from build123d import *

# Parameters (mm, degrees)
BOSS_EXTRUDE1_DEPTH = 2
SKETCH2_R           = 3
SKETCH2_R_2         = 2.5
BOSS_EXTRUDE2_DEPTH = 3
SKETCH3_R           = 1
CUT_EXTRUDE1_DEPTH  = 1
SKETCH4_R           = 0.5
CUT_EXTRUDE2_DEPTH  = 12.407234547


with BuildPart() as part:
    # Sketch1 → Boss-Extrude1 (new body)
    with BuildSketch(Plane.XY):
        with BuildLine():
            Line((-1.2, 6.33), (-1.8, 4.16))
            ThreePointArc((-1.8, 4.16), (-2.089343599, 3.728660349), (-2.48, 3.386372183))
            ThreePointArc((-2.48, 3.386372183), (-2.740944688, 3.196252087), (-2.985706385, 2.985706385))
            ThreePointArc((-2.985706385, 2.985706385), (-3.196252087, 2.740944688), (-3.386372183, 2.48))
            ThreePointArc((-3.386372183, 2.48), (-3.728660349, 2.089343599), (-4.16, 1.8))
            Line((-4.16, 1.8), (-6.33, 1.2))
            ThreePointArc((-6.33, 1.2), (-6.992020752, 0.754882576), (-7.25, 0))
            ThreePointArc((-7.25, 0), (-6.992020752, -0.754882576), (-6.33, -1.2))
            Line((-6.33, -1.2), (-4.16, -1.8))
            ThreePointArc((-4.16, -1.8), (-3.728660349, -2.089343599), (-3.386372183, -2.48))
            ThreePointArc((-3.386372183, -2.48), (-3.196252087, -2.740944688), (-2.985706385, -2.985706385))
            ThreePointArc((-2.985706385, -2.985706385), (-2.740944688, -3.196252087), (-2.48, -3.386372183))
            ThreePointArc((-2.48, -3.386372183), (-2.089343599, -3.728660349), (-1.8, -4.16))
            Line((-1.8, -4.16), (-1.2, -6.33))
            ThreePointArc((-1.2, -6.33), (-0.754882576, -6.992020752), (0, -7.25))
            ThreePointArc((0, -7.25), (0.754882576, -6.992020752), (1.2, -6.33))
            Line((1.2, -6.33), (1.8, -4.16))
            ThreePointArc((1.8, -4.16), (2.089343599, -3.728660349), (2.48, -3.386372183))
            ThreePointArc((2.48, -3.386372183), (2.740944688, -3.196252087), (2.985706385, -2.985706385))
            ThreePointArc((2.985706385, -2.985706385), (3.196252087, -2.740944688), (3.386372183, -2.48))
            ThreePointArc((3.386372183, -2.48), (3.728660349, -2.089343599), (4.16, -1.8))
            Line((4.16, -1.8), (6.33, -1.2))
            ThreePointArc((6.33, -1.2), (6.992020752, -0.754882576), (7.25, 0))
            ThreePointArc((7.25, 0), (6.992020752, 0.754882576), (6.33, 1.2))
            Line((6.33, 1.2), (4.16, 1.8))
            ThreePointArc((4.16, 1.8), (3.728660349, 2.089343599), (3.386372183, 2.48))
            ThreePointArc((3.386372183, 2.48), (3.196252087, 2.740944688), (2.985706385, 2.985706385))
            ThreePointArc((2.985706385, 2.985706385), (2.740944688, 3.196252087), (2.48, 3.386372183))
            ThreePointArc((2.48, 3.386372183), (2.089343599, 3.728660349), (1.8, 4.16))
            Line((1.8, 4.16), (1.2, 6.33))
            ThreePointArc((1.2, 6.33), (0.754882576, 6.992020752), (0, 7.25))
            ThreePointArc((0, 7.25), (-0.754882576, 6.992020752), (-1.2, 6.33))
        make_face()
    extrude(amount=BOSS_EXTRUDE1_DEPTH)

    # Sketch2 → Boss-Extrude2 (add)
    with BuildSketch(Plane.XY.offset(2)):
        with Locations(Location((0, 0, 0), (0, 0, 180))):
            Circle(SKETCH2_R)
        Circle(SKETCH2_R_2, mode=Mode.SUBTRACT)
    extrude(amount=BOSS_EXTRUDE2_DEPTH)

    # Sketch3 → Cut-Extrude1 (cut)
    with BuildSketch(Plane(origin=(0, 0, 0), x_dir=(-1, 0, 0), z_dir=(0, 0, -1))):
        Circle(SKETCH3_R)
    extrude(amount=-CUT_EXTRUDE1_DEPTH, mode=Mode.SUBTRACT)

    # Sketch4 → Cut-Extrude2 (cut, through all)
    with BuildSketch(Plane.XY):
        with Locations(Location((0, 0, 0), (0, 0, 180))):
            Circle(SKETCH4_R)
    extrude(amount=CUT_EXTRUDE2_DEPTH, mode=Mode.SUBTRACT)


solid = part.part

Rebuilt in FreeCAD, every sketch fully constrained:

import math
import FreeCAD as App
import Part
import Sketcher
from FreeCAD import Vector
Q = App.Units.Quantity

doc = App.newDocument("Part")
body = doc.addObject("PartDesign::Body", "Body")

sketch1 = body.newObject("Sketcher::SketchObject", "Sketch")
sketch1.AttachmentSupport = (doc.getObject("XY_Plane"), [""])
sketch1.MapMode = "FlatFace"
sketch1.addGeometry(Part.LineSegment(Vector(-1.2, 6.33, 0), Vector(-1.8, 4.16, 0)), False)
sketch1.addGeometry(Part.ArcOfCircle(Part.Circle(Vector(-3.591534, 5.049049, 0), Vector(0, 0, 1), 2), math.radians(-56.236456), math.radians(-26.392911)), False)
sketch1.addGeometry(Part.ArcOfCircle(Part.Circle(Vector(-0.256933, 0.061019, 0), Vector(0, 0, 1), 4), math.radians(123.763544), math.radians(133.015279)), False)
sketch1.addGeometry(Part.ArcOfCircle(Part.Circle(Vector(-0.061019, 0.256933, 0), Vector(0, 0, 1), 4), math.radians(136.984721), math.radians(146.236456)), False)
sketch1.addGeometry(Part.ArcOfCircle(Part.Circle(Vector(-5.049049, 3.591534, 0), Vector(0, 0, 1), 2), math.radians(-63.607089), math.radians(-33.763544)), False)
sketch1.addGeometry(Part.LineSegment(Vector(-4.16, 1.8, 0), Vector(-6.33, 1.2, 0)), False)
sketch1.addGeometry(Part.ArcOfCircle(Part.Circle(Vector(-6.000013, -0.005657, 0), Vector(0, 0, 1), 1.25), math.radians(105.306933), math.radians(179.740708)), False)
sketch1.addGeometry(Part.ArcOfCircle(Part.Circle(Vector(-6.000013, 0.005657, 0), Vector(0, 0, 1), 1.25), math.radians(-179.740708), math.radians(-105.306933)), False)
sketch1.addGeometry(Part.LineSegment(Vector(-6.33, -1.2, 0), Vector(-4.16, -1.8, 0)), False)
sketch1.addGeometry(Part.ArcOfCircle(Part.Circle(Vector(-5.049049, -3.591534, 0), Vector(0, 0, 1), 2), math.radians(33.763544), math.radians(63.607089)), False)
sketch1.addGeometry(Part.ArcOfCircle(Part.Circle(Vector(-0.061019, -0.256933, 0), Vector(0, 0, 1), 4), math.radians(-146.236456), math.radians(-136.984721)), False)
sketch1.addGeometry(Part.ArcOfCircle(Part.Circle(Vector(-0.256933, -0.061019, 0), Vector(0, 0, 1), 4), math.radians(-133.015279), math.radians(-123.763544)), False)
sketch1.addGeometry(Part.ArcOfCircle(Part.Circle(Vector(-3.591534, -5.049049, 0), Vector(0, 0, 1), 2), math.radians(26.392911), math.radians(56.236456)), False)
sketch1.addGeometry(Part.LineSegment(Vector(-1.8, -4.16, 0), Vector(-1.2, -6.33, 0)), False)
sketch1.addGeometry(Part.ArcOfCircle(Part.Circle(Vector(0.005657, -6.000013, 0), Vector(0, 0, 1), 1.25), math.radians(-164.693067), math.radians(-90.259292)), False)
sketch1.addGeometry(Part.ArcOfCircle(Part.Circle(Vector(-0.005657, -6.000013, 0), Vector(0, 0, 1), 1.25), math.radians(-89.740708), math.radians(-15.306933)), False)
sketch1.addGeometry(Part.LineSegment(Vector(1.2, -6.33, 0), Vector(1.8, -4.16, 0)), False)
sketch1.addGeometry(Part.ArcOfCircle(Part.Circle(Vector(3.591534, -5.049049, 0), Vector(0, 0, 1), 2), math.radians(123.763544), math.radians(153.607089)), False)
sketch1.addGeometry(Part.ArcOfCircle(Part.Circle(Vector(0.256933, -0.061019, 0), Vector(0, 0, 1), 4), math.radians(-56.236456), math.radians(-46.984721)), False)
sketch1.addGeometry(Part.ArcOfCircle(Part.Circle(Vector(0.061019, -0.256933, 0), Vector(0, 0, 1), 4), math.radians(-43.015279), math.radians(-33.763544)), False)
sketch1.addGeometry(Part.ArcOfCircle(Part.Circle(Vector(5.049049, -3.591534, 0), Vector(0, 0, 1), 2), math.radians(116.392911), math.radians(146.236456)), False)
sketch1.addGeometry(Part.LineSegment(Vector(4.16, -1.8, 0), Vector(6.33, -1.2, 0)), False)
sketch1.addGeometry(Part.ArcOfCircle(Part.Circle(Vector(6.000013, 0.005657, 0), Vector(0, 0, 1), 1.25), math.radians(-74.693067), math.radians(-0.259292)), False)
sketch1.addGeometry(Part.ArcOfCircle(Part.Circle(Vector(6.000013, -0.005657, 0), Vector(0, 0, 1), 1.25), math.radians(0.259292), math.radians(74.693067)), False)
sketch1.addGeometry(Part.LineSegment(Vector(6.33, 1.2, 0), Vector(4.16, 1.8, 0)), False)
sketch1.addGeometry(Part.ArcOfCircle(Part.Circle(Vector(5.049049, 3.591534, 0), Vector(0, 0, 1), 2), math.radians(-146.236456), math.radians(-116.392911)), False)
sketch1.addGeometry(Part.ArcOfCircle(Part.Circle(Vector(0.061019, 0.256933, 0), Vector(0, 0, 1), 4), math.radians(33.763544), math.radians(43.015279)), False)
sketch1.addGeometry(Part.ArcOfCircle(Part.Circle(Vector(0.256933, 0.061019, 0), Vector(0, 0, 1), 4), math.radians(46.984721), math.radians(56.236456)), False)
sketch1.addGeometry(Part.ArcOfCircle(Part.Circle(Vector(3.591534, 5.049049, 0), Vector(0, 0, 1), 2), math.radians(-153.607089), math.radians(-123.763544)), False)
sketch1.addGeometry(Part.LineSegment(Vector(1.8, 4.16, 0), Vector(1.2, 6.33, 0)), False)
sketch1.addGeometry(Part.ArcOfCircle(Part.Circle(Vector(-0.005657, 6.000013, 0), Vector(0, 0, 1), 1.25), math.radians(15.306933), math.radians(89.740708)), False)
sketch1.addGeometry(Part.ArcOfCircle(Part.Circle(Vector(0.005657, 6.000013, 0), Vector(0, 0, 1), 1.25), math.radians(90.259292), math.radians(164.693067)), False)
sketch1.addConstraint(Sketcher.Constraint("Coincident", 0, 2, 1, 2))
sketch1.addConstraint(Sketcher.Constraint("Tangent", 1, 1, 2, 1))
sketch1.addConstraint(Sketcher.Constraint("Coincident", 2, 2, 3, 1))
sketch1.addConstraint(Sketcher.Constraint("Tangent", 3, 2, 4, 2))
sketch1.addConstraint(Sketcher.Constraint("Coincident", 4, 1, 5, 1))
sketch1.addConstraint(Sketcher.Constraint("Coincident", 5, 2, 6, 1))
sketch1.addConstraint(Sketcher.Constraint("Coincident", 6, 2, 7, 1))
sketch1.addConstraint(Sketcher.Constraint("Coincident", 7, 2, 8, 1))
sketch1.addConstraint(Sketcher.Constraint("Coincident", 8, 2, 9, 2))
sketch1.addConstraint(Sketcher.Constraint("Tangent", 9, 1, 10, 1))
sketch1.addConstraint(Sketcher.Constraint("Coincident", 10, 2, 11, 1))
sketch1.addConstraint(Sketcher.Constraint("Tangent", 11, 2, 12, 2))
sketch1.addConstraint(Sketcher.Constraint("Coincident", 12, 1, 13, 1))
sketch1.addConstraint(Sketcher.Constraint("Coincident", 13, 2, 14, 1))
sketch1.addConstraint(Sketcher.Constraint("Coincident", 14, 2, 15, 1))
sketch1.addConstraint(Sketcher.Constraint("Coincident", 15, 2, 16, 1))
sketch1.addConstraint(Sketcher.Constraint("Coincident", 16, 2, 17, 2))
sketch1.addConstraint(Sketcher.Constraint("Tangent", 17, 1, 18, 1))
sketch1.addConstraint(Sketcher.Constraint("Coincident", 18, 2, 19, 1))
sketch1.addConstraint(Sketcher.Constraint("Tangent", 19, 2, 20, 2))
sketch1.addConstraint(Sketcher.Constraint("Coincident", 20, 1, 21, 1))
sketch1.addConstraint(Sketcher.Constraint("Coincident", 21, 2, 22, 1))
sketch1.addConstraint(Sketcher.Constraint("Coincident", 22, 2, 23, 1))
sketch1.addConstraint(Sketcher.Constraint("Coincident", 23, 2, 24, 1))
sketch1.addConstraint(Sketcher.Constraint("Coincident", 24, 2, 25, 2))
sketch1.addConstraint(Sketcher.Constraint("Tangent", 25, 1, 26, 1))
sketch1.addConstraint(Sketcher.Constraint("Coincident", 26, 2, 27, 1))
sketch1.addConstraint(Sketcher.Constraint("Tangent", 27, 2, 28, 2))
sketch1.addConstraint(Sketcher.Constraint("Coincident", 28, 1, 29, 1))
sketch1.addConstraint(Sketcher.Constraint("Coincident", 29, 2, 30, 1))
sketch1.addConstraint(Sketcher.Constraint("Coincident", 30, 2, 31, 1))
sketch1.addConstraint(Sketcher.Constraint("Coincident", 31, 2, 0, 1))
sketch1.addConstraint(Sketcher.Constraint("Equal", 2, 3))
sketch1.addConstraint(Sketcher.Constraint("Equal", 1, 4))
sketch1.addConstraint(Sketcher.Constraint("Equal", 6, 7))
sketch1.addConstraint(Sketcher.Constraint("Equal", 4, 9))
sketch1.addConstraint(Sketcher.Constraint("Equal", 3, 10))
sketch1.addConstraint(Sketcher.Constraint("Equal", 10, 11))
sketch1.addConstraint(Sketcher.Constraint("Equal", 9, 12))
sketch1.addConstraint(Sketcher.Constraint("Equal", 7, 14))
sketch1.addConstraint(Sketcher.Constraint("Equal", 14, 15))
sketch1.addConstraint(Sketcher.Constraint("Equal", 12, 17))
sketch1.addConstraint(Sketcher.Constraint("Equal", 11, 18))
sketch1.addConstraint(Sketcher.Constraint("Equal", 18, 19))
sketch1.addConstraint(Sketcher.Constraint("Equal", 17, 20))
sketch1.addConstraint(Sketcher.Constraint("Equal", 15, 22))
sketch1.addConstraint(Sketcher.Constraint("Equal", 22, 23))
sketch1.addConstraint(Sketcher.Constraint("Equal", 20, 25))
sketch1.addConstraint(Sketcher.Constraint("Equal", 19, 26))
sketch1.addConstraint(Sketcher.Constraint("Equal", 26, 27))
sketch1.addConstraint(Sketcher.Constraint("Equal", 25, 28))
sketch1.addConstraint(Sketcher.Constraint("Equal", 23, 30))
sketch1.addConstraint(Sketcher.Constraint("Equal", 30, 31))
sketch1.addConstraint(Sketcher.Constraint("Symmetric", 1, 3, 17, 3, -1, 1))
sketch1.addConstraint(Sketcher.Constraint("Symmetric", 3, 3, 19, 3, -1, 1))
sketch1.addConstraint(Sketcher.Constraint("Symmetric", 6, 3, 22, 3, -1, 1))
sketch1.addConstraint(Sketcher.Constraint("Symmetric", 7, 3, 23, 3, -1, 1))
sketch1.addConstraint(Sketcher.Constraint("Symmetric", 9, 3, 25, 3, -1, 1))
sketch1.addConstraint(Sketcher.Constraint("Symmetric", 11, 3, 27, 3, -1, 1))
sketch1.addConstraint(Sketcher.Constraint("Symmetric", 14, 3, 30, 3, -1, 1))
sketch1.addConstraint(Sketcher.Constraint("Symmetric", 15, 3, 31, 3, -1, 1))
sketch1.addConstraint(Sketcher.Constraint("Symmetric", 4, 1, 20, 1, -1, 1))
sketch1.addConstraint(Sketcher.Constraint("Symmetric", 12, 1, 28, 1, -1, 1))
sketch1.addConstraint(Sketcher.Constraint("Symmetric", 14, 3, 15, 3, -2))
sketch1.addConstraint(Sketcher.Constraint("Symmetric", 12, 3, 17, 3, -2))
sketch1.addConstraint(Sketcher.Constraint("Symmetric", 10, 3, 19, 3, -2))
sketch1.addConstraint(Sketcher.Constraint("Symmetric", 7, 3, 22, 3, -2))
sketch1.addConstraint(Sketcher.Constraint("Symmetric", 8, 2, 20, 1, -2))
sketch1.addConstraint(Sketcher.Constraint("Symmetric", 2, 2, 26, 2, -2))
sketch1.addConstraint(Sketcher.Constraint("Perpendicular", 0, 8))
sketch1.addConstraint(Sketcher.Constraint("Perpendicular", 5, 13))
sketch1.addConstraint(Sketcher.Constraint("Perpendicular", 8, 16))
sketch1.addConstraint(Sketcher.Constraint("Perpendicular", 16, 24))
sketch1.addConstraint(Sketcher.Constraint("Perpendicular", 21, 29))
sketch1.addConstraint(Sketcher.Constraint("Horizontal", 11, 3, 18, 3))
sketch1.addConstraint(Sketcher.Constraint("Horizontal", 13, 2, 15, 2))
sketch1.addConstraint(Sketcher.Constraint("Horizontal", 12, 1, 16, 2))
sketch1.addConstraint(Sketcher.Constraint("Horizontal", 7, 2, 21, 2))
sketch1.addConstraint(Sketcher.Constraint("Horizontal", 5, 2, 23, 2))
sketch1.addConstraint(Sketcher.Constraint("Horizontal", 0, 2, 28, 1))
sketch1.addConstraint(Sketcher.Constraint("Equal", 0, 5))
sketch1.addConstraint(Sketcher.Constraint("Radius", 1, Q("2 mm")))
sketch1.addConstraint(Sketcher.Constraint("Radius", 2, Q("4 mm")))
sketch1.addConstraint(Sketcher.Constraint("Radius", 6, Q("1.25 mm")))
sketch1.addConstraint(Sketcher.Constraint("DistanceX", 0, 2, -1, 1, Q("1.8 mm")))
sketch1.addConstraint(Sketcher.Constraint("DistanceY", -1, 1, 4, 1, Q("1.8 mm")))
sketch1.addConstraint(Sketcher.Constraint("DistanceY", -1, 1, 5, 2, Q("1.2 mm")))
sketch1.addConstraint(Sketcher.Constraint("DistanceY", -1, 1, 0, 2, Q("4.16 mm")))
sketch1.addConstraint(Sketcher.Constraint("DistanceX", 1, 1, -1, 1, Q("2.48 mm")))
sketch1.addConstraint(Sketcher.Constraint("DistanceY", -1, 1, 3, 2, Q("2.48 mm")))
sketch1.addConstraint(Sketcher.Constraint("DistanceX", 4, 1, -1, 1, Q("4.16 mm")))
sketch1.addConstraint(Sketcher.Constraint("DistanceX", 5, 2, -1, 1, Q("6.33 mm")))
sketch1.addConstraint(Sketcher.Constraint("DistanceX", 6, 2, -1, 1, Q("7.25 mm")))
sketch1.addConstraint(Sketcher.Constraint("DistanceY", 14, 2, -1, 1, Q("7.25 mm")))
sketch1.addConstraint(Sketcher.Constraint("DistanceX", 1, 3, 2, 3, Q("3.334601 mm")))
sketch1.addConstraint(Sketcher.Constraint("DistanceY", 3, 3, 4, 3, Q("3.334601 mm")))
pad1 = body.newObject("PartDesign::Pad", "Pad")
pad1.Profile = sketch1
pad1.Length = 2

sketch2 = body.newObject("Sketcher::SketchObject", "Sketch001")
sketch2.AttachmentSupport = (doc.getObject("XY_Plane"), [""])
sketch2.MapMode = "FlatFace"
sketch2.AttachmentOffset = App.Placement(Vector(0, 0, 2), App.Rotation())
sketch2.addGeometry(Part.Circle(Vector(0, 0, 0), Vector(0, 0, 1), 3), False)
sketch2.addGeometry(Part.Circle(Vector(0, 0, 0), Vector(0, 0, 1), 2.5), False)
sketch2.addConstraint(Sketcher.Constraint("Coincident", 0, 3, -1, 1))
sketch2.addConstraint(Sketcher.Constraint("Coincident", 1, 3, -1, 1))
sketch2.addConstraint(Sketcher.Constraint("Diameter", 0, Q("6 mm")))
sketch2.addConstraint(Sketcher.Constraint("Diameter", 1, Q("5 mm")))
pad2 = body.newObject("PartDesign::Pad", "Pad001")
pad2.Profile = sketch2
pad2.Length = 3

sketch3 = body.newObject("Sketcher::SketchObject", "Sketch002")
sketch3.AttachmentSupport = (doc.getObject("XY_Plane"), [""])
sketch3.MapMode = "FlatFace"
sketch3.addGeometry(Part.Circle(Vector(0, 0, 0), Vector(0, 0, 1), 1), False)
sketch3.addConstraint(Sketcher.Constraint("Coincident", 0, 3, -1, 1))
sketch3.addConstraint(Sketcher.Constraint("Diameter", 0, Q("2 mm")))
pocket1 = body.newObject("PartDesign::Pocket", "Pocket")
pocket1.Profile = sketch3
pocket1.Length = 1
pocket1.Reversed = True

sketch4 = body.newObject("Sketcher::SketchObject", "Sketch003")
sketch4.AttachmentSupport = (doc.getObject("XY_Plane"), [""])
sketch4.MapMode = "FlatFace"
sketch4.addGeometry(Part.Circle(Vector(0, 0, 0), Vector(0, 0, 1), 0.5), False)
sketch4.addConstraint(Sketcher.Constraint("Coincident", 0, 3, -1, 1))
sketch4.addConstraint(Sketcher.Constraint("Diameter", 0, Q("1 mm")))
pocket2 = body.newObject("PartDesign::Pocket", "Pocket001")
pocket2.Profile = sketch4
pocket2.Type = "ThroughAll"
pocket2.Reversed = True

doc.recompute()
